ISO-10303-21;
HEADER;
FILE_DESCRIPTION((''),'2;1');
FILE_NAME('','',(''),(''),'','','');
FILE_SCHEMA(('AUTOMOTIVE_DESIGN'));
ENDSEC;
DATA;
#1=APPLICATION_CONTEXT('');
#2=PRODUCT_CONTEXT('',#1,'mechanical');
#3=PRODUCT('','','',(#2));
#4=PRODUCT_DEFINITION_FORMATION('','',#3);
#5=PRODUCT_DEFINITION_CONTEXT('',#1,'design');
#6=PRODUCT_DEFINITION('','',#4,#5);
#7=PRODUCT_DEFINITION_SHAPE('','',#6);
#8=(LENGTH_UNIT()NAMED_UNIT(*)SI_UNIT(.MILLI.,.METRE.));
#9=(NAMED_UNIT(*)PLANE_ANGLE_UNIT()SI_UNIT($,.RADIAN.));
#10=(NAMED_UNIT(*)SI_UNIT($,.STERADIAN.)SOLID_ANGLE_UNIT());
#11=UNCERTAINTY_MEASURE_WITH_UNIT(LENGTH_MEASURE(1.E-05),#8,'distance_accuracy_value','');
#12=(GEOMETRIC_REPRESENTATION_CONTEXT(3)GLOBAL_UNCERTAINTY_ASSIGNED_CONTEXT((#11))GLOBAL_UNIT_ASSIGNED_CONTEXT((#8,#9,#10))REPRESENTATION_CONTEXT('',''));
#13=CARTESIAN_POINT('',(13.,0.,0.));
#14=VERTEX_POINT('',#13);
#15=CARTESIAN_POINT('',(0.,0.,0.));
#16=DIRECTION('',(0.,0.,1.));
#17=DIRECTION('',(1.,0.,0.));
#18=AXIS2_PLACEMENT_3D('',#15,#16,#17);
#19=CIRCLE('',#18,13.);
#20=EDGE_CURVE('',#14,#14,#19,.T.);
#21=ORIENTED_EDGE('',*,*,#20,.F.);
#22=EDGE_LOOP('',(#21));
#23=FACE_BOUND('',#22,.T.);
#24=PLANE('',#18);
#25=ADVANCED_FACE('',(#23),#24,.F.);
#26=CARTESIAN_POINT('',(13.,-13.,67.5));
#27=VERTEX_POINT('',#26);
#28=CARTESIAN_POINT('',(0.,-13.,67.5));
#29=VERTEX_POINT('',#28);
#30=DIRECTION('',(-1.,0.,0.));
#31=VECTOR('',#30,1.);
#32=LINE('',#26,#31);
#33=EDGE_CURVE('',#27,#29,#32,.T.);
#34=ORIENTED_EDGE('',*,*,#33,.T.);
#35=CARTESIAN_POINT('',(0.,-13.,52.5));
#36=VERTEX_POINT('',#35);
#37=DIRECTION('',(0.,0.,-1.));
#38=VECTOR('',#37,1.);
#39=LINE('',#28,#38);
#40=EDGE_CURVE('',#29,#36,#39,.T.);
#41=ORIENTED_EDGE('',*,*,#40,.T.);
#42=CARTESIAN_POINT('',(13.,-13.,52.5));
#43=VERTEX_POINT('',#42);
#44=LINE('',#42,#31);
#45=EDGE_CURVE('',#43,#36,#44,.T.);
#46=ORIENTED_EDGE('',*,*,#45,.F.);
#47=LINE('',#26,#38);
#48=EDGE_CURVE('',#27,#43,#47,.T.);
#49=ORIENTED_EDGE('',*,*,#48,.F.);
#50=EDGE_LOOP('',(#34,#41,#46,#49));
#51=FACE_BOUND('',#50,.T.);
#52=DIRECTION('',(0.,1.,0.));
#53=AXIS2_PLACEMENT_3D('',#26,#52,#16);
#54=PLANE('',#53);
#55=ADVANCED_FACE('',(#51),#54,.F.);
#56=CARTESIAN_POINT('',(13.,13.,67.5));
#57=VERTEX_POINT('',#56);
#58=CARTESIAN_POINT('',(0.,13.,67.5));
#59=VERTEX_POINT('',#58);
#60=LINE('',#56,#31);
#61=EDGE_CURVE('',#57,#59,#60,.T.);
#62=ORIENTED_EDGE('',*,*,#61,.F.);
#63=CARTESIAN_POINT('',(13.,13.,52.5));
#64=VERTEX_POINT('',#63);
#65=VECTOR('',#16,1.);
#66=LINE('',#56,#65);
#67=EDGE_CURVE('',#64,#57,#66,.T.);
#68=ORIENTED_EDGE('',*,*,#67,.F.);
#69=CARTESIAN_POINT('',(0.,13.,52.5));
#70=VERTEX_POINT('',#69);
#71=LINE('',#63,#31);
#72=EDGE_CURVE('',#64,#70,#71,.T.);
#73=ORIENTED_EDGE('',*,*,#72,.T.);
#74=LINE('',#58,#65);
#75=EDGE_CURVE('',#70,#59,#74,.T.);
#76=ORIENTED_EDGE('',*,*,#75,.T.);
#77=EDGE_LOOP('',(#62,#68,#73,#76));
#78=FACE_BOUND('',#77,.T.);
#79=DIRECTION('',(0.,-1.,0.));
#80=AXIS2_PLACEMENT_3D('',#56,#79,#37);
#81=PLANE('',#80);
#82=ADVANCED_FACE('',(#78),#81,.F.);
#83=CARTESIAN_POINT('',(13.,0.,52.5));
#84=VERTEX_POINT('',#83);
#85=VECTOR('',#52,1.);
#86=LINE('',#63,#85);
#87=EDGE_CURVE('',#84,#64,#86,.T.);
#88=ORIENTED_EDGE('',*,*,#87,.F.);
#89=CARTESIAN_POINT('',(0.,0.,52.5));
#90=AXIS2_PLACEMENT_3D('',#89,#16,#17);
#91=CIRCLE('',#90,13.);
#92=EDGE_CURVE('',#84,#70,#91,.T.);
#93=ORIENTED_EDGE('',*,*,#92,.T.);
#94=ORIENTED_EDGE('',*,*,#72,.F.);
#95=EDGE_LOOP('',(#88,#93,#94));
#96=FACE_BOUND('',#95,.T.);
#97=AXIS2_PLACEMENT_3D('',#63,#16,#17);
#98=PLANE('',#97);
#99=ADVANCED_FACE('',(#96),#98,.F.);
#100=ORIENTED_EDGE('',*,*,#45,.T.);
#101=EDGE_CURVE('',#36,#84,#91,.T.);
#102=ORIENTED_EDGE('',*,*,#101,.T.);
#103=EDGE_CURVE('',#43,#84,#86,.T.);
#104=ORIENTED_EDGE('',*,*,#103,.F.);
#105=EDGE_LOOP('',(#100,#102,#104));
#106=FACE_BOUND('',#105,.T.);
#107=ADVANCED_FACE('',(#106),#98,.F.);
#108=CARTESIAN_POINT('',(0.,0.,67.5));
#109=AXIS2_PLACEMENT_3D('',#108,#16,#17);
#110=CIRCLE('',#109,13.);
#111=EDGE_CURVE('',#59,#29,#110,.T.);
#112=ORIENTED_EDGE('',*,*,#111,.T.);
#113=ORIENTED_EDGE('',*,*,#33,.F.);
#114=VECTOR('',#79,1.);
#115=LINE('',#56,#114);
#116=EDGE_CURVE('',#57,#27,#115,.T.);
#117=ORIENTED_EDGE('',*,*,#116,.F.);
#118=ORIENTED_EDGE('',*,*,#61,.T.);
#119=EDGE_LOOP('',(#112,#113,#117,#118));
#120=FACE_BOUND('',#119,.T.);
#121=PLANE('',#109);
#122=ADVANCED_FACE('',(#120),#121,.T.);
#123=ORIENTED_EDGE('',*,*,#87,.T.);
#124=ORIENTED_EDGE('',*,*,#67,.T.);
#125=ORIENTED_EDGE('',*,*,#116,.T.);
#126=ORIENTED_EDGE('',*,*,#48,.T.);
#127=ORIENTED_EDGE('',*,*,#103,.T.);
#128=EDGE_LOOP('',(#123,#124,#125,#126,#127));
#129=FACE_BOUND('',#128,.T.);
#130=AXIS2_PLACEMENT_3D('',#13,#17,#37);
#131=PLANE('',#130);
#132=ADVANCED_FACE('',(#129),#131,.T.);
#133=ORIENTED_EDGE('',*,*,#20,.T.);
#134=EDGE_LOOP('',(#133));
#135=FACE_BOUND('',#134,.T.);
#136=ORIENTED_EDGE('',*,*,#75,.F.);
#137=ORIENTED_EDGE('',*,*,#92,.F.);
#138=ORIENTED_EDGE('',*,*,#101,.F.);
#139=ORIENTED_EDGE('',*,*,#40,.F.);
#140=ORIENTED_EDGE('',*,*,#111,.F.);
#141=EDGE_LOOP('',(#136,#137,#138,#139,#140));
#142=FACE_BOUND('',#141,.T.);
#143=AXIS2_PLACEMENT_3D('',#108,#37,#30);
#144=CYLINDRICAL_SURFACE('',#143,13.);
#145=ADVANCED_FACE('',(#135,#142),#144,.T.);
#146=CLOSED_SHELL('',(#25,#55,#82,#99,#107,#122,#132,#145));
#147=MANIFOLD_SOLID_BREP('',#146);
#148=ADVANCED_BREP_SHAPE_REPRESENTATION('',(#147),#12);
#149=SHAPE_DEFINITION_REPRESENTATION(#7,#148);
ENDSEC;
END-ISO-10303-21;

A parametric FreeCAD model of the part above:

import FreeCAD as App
import Part
import Sketcher

V = App.Vector

doc = App.newDocument("Part")
body = doc.addObject("PartDesign::Body", "Body")

sketch1 = body.newObject("Sketcher::SketchObject", "Sketch")
sketch1.AttachmentSupport = (doc.getObject("XY_Plane"), [""])
sketch1.MapMode = "FlatFace"
sketch1.addGeometry(Part.Circle(V(0, 0, 0), V(0, 0, 1), 13), False)
sketch1.addConstraint(Sketcher.Constraint("Coincident", 0, 3, -1, 1))
sketch1.addConstraint(Sketcher.Constraint("Diameter", 0, 26.0))
pad1 = body.newObject("PartDesign::Pad", "Pad")
pad1.Profile = sketch1
pad1.Length = 67.5

sketch2 = body.newObject("Sketcher::SketchObject", "Sketch001")
sketch2.AttachmentSupport = (doc.getObject("YZ_Plane"), [""])
sketch2.MapMode = "FlatFace"
sketch2.addGeometry(Part.LineSegment(V(13, 67.5, 0), V(-13, 67.5, 0)), False)
sketch2.addGeometry(Part.LineSegment(V(-13, 67.5, 0), V(-13, 52.5, 0)), False)
sketch2.addGeometry(Part.LineSegment(V(-13, 52.5, 0), V(13, 52.5, 0)), False)
sketch2.addGeometry(Part.LineSegment(V(13, 52.5, 0), V(13, 67.5, 0)), False)
sketch2.addConstraint(Sketcher.Constraint("Coincident", 0, 2, 1, 1))
sketch2.addConstraint(Sketcher.Constraint("Coincident", 1, 2, 2, 1))
sketch2.addConstraint(Sketcher.Constraint("Coincident", 2, 2, 3, 1))
sketch2.addConstraint(Sketcher.Constraint("Coincident", 3, 2, 0, 1))
sketch2.addConstraint(Sketcher.Constraint("Horizontal", 0))
sketch2.addConstraint(Sketcher.Constraint("Vertical", 1))
sketch2.addConstraint(Sketcher.Constraint("Horizontal", 2))
sketch2.addConstraint(Sketcher.Constraint("Vertical", 3))
sketch2.addConstraint(Sketcher.Constraint("DistanceX", 0, 2, 0, 1, 26.0))
sketch2.addConstraint(Sketcher.Constraint("DistanceY", 1, 2, 1, 1, 15.0))
sketch2.addConstraint(Sketcher.Constraint("DistanceX", 0, 2, -1, 1, 13.0))
sketch2.addConstraint(Sketcher.Constraint("DistanceY", -1, 1, 0, 2, 67.5))
pad2 = body.newObject("PartDesign::Pad", "Pad001")
pad2.Profile = sketch2
pad2.Length = 13

doc.recompute()
